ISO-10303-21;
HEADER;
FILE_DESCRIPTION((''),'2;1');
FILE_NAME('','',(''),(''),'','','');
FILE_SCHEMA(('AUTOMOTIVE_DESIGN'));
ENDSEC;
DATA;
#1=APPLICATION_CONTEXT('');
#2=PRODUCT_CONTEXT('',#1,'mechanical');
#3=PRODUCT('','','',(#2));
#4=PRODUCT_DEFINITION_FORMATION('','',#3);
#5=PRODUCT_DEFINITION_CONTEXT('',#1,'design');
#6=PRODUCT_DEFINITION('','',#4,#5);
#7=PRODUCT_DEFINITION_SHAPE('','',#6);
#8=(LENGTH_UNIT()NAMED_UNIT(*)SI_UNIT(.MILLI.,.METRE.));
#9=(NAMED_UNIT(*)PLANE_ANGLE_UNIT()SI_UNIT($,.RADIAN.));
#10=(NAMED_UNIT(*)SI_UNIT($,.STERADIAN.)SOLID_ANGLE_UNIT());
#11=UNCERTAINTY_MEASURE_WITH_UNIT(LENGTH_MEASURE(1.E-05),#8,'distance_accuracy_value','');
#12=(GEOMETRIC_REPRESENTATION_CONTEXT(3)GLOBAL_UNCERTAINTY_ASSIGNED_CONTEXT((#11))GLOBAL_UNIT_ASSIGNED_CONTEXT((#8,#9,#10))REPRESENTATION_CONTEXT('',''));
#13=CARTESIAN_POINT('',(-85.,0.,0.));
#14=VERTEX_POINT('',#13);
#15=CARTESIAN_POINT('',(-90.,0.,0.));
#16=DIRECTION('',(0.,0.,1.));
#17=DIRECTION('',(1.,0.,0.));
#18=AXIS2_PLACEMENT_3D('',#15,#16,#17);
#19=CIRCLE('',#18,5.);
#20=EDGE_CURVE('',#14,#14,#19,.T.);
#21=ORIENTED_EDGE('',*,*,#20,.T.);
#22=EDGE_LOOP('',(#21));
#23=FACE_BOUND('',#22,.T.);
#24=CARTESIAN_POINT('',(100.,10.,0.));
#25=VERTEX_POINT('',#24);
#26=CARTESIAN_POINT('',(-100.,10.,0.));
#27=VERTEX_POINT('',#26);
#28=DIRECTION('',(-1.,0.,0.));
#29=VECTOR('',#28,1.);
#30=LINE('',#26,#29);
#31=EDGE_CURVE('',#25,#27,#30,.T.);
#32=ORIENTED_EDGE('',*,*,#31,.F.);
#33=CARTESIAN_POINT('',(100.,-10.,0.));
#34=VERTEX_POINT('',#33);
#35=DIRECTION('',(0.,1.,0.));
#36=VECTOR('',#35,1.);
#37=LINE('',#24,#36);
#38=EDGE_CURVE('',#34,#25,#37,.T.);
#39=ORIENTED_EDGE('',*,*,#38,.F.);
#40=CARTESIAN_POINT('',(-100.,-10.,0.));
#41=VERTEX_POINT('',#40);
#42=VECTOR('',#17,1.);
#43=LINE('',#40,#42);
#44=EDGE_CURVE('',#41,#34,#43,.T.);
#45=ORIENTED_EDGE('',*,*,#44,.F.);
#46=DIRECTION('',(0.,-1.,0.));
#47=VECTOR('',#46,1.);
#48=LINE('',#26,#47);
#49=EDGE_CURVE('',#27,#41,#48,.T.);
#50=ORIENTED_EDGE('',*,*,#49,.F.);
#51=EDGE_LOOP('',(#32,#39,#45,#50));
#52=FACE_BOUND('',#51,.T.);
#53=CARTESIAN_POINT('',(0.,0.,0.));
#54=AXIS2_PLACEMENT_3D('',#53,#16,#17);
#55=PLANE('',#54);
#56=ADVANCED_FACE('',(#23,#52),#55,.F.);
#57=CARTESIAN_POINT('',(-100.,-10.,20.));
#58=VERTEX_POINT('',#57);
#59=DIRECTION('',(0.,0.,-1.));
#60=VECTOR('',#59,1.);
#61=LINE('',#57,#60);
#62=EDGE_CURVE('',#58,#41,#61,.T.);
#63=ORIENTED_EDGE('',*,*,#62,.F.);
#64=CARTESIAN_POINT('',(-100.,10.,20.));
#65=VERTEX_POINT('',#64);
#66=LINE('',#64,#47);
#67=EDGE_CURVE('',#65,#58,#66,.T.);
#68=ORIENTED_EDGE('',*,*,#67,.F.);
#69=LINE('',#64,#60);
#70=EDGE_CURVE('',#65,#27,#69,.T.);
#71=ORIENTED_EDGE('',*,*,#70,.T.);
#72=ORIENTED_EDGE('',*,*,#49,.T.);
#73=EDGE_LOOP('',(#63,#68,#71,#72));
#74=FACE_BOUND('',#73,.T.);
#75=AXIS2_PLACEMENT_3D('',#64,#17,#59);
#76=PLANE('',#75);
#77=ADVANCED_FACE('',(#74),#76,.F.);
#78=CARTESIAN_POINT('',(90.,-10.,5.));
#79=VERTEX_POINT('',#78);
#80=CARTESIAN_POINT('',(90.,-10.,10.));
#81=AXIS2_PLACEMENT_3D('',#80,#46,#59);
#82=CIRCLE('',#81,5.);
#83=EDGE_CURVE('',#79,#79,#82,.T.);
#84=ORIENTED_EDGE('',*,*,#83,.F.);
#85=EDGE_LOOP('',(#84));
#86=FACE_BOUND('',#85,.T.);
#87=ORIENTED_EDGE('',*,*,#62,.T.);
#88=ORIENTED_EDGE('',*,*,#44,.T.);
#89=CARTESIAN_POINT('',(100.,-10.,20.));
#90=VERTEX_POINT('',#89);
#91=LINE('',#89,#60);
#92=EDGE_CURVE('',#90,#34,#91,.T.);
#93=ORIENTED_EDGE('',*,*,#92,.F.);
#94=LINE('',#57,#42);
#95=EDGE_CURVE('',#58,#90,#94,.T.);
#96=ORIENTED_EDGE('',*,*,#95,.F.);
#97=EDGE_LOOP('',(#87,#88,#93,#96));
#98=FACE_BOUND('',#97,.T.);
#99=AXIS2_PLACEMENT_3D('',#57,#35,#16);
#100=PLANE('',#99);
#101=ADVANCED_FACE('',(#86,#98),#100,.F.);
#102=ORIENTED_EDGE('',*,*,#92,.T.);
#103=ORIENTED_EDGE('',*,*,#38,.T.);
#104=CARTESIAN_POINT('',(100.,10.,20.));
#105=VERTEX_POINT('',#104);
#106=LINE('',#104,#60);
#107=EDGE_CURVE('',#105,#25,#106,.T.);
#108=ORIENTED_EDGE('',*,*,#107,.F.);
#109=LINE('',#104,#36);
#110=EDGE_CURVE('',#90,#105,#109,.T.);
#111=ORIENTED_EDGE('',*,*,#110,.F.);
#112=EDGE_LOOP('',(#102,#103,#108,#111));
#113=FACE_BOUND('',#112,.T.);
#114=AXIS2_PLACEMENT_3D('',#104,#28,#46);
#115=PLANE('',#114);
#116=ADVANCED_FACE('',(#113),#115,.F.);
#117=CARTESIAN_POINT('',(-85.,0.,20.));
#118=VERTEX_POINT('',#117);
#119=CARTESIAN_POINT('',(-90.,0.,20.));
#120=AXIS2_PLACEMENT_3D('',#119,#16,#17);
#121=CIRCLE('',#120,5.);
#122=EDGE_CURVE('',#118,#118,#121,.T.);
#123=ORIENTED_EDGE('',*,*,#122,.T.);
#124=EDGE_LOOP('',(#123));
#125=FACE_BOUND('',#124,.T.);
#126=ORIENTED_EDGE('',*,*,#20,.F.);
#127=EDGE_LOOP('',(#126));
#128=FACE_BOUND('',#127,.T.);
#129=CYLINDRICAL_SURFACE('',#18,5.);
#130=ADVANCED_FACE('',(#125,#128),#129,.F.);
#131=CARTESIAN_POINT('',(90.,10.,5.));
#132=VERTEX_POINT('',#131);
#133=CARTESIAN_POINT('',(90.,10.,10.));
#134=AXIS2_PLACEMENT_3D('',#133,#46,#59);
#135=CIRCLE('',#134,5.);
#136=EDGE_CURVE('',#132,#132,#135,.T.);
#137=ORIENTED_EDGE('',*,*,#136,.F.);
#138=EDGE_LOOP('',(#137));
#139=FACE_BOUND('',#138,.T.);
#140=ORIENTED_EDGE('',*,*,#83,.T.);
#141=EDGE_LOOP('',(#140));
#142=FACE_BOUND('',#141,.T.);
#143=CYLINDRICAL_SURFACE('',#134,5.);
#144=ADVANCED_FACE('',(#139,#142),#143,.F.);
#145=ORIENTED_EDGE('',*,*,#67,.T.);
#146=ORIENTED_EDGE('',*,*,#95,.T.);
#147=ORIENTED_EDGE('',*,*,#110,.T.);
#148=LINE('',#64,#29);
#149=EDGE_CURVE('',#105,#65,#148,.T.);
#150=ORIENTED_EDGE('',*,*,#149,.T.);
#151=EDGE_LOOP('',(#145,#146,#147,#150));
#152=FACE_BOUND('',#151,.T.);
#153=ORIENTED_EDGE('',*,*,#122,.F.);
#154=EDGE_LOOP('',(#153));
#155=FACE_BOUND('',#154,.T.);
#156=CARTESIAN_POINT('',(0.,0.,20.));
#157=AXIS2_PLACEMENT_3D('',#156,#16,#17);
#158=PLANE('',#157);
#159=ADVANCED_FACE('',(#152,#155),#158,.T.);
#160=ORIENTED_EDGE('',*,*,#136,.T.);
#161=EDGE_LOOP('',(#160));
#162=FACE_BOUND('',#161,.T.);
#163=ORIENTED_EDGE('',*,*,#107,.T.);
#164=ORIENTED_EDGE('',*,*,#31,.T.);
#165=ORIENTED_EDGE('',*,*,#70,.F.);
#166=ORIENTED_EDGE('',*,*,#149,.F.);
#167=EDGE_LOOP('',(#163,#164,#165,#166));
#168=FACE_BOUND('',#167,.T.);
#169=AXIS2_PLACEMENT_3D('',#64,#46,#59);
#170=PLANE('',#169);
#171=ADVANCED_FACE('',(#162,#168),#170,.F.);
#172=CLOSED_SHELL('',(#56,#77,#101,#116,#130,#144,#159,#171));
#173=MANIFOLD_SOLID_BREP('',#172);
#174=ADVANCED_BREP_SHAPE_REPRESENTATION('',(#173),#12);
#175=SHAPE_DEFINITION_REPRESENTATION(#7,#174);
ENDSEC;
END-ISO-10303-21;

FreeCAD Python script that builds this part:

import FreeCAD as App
import Part
import Sketcher
Q = App.Units.Quantity

doc = App.newDocument("Part")
body = doc.addObject("PartDesign::Body", "Body")

sketch1 = doc.addObject("Sketcher::SketchObject", "Sketch")
body.addObject(sketch1)
sketch1.AttachmentSupport = (doc.XY_Plane, [""])
sketch1.MapMode = "FlatFace"
sketch1.addGeometry([
    Part.LineSegment(App.Vector(-100, 10, 0), App.Vector(-100, -10, 0)),
    Part.LineSegment(App.Vector(-100, -10, 0), App.Vector(100, -10, 0)),
    Part.LineSegment(App.Vector(100, -10, 0), App.Vector(100, 10, 0)),
    Part.LineSegment(App.Vector(100, 10, 0), App.Vector(-100, 10, 0)),
], False)
sketch1.addConstraint([
    Sketcher.Constraint("Coincident", 0, 2, 1, 1),
    Sketcher.Constraint("Coincident", 1, 2, 2, 1),
    Sketcher.Constraint("Coincident", 2, 2, 3, 1),
    Sketcher.Constraint("Coincident", 3, 2, 0, 1),
    Sketcher.Constraint("Vertical", 0),
    Sketcher.Constraint("Horizontal", 1),
    Sketcher.Constraint("Vertical", 2),
    Sketcher.Constraint("Horizontal", 3),
    Sketcher.Constraint("Symmetric", 0, 2, 2, 2, -1, 1),
    Sketcher.Constraint("DistanceX", 1, 1, 1, 2, Q("200 mm")),
    Sketcher.Constraint("DistanceY", 0, 2, 0, 1, Q("20 mm")),
])
pad1 = doc.addObject("PartDesign::Pad", "Pad")
body.addObject(pad1)
pad1.Profile = sketch1
pad1.Length = 20

sketch2 = doc.addObject("Sketcher::SketchObject", "Sketch001")
body.addObject(sketch2)
sketch2.AttachmentSupport = (doc.XY_Plane, [""])
sketch2.MapMode = "FlatFace"
sketch2.AttachmentOffset = App.Placement(App.Vector(0, 0, 20), App.Rotation())
sketch2.addGeometry(Part.Circle(App.Vector(-90, 0, 0), App.Vector(0, 0, 1), 5), False)
sketch2.addConstraint([
    Sketcher.Constraint("PointOnObject", 0, 3, -1),
    Sketcher.Constraint("Diameter", 0, Q("10 mm")),
    Sketcher.Constraint("DistanceX", 0, 3, -1, 1, Q("90 mm")),
])
pocket1 = doc.addObject("PartDesign::Pocket", "Pocket")
body.addObject(pocket1)
pocket1.Profile = sketch2
pocket1.Type = "ThroughAll"

sketch3 = doc.addObject("Sketcher::SketchObject", "Sketch002")
body.addObject(sketch3)
sketch3.AttachmentSupport = (doc.XZ_Plane, [""])
sketch3.MapMode = "FlatFace"
sketch3.AttachmentOffset = App.Placement(App.Vector(0, 0, 10), App.Rotation())
sketch3.addGeometry(Part.Circle(App.Vector(90, 10, 0), App.Vector(0, 0, 1), 5), False)
sketch3.addConstraint([
    Sketcher.Constraint("Diameter", 0, Q("10 mm")),
    Sketcher.Constraint("DistanceX", -1, 1, 0, 3, Q("90 mm")),
    Sketcher.Constraint("DistanceY", -1, 1, 0, 3, Q("10 mm")),
])
pocket2 = doc.addObject("PartDesign::Pocket", "Pocket001")
body.addObject(pocket2)
pocket2.Profile = sketch3
pocket2.Type = "ThroughAll"

doc.recompute()
